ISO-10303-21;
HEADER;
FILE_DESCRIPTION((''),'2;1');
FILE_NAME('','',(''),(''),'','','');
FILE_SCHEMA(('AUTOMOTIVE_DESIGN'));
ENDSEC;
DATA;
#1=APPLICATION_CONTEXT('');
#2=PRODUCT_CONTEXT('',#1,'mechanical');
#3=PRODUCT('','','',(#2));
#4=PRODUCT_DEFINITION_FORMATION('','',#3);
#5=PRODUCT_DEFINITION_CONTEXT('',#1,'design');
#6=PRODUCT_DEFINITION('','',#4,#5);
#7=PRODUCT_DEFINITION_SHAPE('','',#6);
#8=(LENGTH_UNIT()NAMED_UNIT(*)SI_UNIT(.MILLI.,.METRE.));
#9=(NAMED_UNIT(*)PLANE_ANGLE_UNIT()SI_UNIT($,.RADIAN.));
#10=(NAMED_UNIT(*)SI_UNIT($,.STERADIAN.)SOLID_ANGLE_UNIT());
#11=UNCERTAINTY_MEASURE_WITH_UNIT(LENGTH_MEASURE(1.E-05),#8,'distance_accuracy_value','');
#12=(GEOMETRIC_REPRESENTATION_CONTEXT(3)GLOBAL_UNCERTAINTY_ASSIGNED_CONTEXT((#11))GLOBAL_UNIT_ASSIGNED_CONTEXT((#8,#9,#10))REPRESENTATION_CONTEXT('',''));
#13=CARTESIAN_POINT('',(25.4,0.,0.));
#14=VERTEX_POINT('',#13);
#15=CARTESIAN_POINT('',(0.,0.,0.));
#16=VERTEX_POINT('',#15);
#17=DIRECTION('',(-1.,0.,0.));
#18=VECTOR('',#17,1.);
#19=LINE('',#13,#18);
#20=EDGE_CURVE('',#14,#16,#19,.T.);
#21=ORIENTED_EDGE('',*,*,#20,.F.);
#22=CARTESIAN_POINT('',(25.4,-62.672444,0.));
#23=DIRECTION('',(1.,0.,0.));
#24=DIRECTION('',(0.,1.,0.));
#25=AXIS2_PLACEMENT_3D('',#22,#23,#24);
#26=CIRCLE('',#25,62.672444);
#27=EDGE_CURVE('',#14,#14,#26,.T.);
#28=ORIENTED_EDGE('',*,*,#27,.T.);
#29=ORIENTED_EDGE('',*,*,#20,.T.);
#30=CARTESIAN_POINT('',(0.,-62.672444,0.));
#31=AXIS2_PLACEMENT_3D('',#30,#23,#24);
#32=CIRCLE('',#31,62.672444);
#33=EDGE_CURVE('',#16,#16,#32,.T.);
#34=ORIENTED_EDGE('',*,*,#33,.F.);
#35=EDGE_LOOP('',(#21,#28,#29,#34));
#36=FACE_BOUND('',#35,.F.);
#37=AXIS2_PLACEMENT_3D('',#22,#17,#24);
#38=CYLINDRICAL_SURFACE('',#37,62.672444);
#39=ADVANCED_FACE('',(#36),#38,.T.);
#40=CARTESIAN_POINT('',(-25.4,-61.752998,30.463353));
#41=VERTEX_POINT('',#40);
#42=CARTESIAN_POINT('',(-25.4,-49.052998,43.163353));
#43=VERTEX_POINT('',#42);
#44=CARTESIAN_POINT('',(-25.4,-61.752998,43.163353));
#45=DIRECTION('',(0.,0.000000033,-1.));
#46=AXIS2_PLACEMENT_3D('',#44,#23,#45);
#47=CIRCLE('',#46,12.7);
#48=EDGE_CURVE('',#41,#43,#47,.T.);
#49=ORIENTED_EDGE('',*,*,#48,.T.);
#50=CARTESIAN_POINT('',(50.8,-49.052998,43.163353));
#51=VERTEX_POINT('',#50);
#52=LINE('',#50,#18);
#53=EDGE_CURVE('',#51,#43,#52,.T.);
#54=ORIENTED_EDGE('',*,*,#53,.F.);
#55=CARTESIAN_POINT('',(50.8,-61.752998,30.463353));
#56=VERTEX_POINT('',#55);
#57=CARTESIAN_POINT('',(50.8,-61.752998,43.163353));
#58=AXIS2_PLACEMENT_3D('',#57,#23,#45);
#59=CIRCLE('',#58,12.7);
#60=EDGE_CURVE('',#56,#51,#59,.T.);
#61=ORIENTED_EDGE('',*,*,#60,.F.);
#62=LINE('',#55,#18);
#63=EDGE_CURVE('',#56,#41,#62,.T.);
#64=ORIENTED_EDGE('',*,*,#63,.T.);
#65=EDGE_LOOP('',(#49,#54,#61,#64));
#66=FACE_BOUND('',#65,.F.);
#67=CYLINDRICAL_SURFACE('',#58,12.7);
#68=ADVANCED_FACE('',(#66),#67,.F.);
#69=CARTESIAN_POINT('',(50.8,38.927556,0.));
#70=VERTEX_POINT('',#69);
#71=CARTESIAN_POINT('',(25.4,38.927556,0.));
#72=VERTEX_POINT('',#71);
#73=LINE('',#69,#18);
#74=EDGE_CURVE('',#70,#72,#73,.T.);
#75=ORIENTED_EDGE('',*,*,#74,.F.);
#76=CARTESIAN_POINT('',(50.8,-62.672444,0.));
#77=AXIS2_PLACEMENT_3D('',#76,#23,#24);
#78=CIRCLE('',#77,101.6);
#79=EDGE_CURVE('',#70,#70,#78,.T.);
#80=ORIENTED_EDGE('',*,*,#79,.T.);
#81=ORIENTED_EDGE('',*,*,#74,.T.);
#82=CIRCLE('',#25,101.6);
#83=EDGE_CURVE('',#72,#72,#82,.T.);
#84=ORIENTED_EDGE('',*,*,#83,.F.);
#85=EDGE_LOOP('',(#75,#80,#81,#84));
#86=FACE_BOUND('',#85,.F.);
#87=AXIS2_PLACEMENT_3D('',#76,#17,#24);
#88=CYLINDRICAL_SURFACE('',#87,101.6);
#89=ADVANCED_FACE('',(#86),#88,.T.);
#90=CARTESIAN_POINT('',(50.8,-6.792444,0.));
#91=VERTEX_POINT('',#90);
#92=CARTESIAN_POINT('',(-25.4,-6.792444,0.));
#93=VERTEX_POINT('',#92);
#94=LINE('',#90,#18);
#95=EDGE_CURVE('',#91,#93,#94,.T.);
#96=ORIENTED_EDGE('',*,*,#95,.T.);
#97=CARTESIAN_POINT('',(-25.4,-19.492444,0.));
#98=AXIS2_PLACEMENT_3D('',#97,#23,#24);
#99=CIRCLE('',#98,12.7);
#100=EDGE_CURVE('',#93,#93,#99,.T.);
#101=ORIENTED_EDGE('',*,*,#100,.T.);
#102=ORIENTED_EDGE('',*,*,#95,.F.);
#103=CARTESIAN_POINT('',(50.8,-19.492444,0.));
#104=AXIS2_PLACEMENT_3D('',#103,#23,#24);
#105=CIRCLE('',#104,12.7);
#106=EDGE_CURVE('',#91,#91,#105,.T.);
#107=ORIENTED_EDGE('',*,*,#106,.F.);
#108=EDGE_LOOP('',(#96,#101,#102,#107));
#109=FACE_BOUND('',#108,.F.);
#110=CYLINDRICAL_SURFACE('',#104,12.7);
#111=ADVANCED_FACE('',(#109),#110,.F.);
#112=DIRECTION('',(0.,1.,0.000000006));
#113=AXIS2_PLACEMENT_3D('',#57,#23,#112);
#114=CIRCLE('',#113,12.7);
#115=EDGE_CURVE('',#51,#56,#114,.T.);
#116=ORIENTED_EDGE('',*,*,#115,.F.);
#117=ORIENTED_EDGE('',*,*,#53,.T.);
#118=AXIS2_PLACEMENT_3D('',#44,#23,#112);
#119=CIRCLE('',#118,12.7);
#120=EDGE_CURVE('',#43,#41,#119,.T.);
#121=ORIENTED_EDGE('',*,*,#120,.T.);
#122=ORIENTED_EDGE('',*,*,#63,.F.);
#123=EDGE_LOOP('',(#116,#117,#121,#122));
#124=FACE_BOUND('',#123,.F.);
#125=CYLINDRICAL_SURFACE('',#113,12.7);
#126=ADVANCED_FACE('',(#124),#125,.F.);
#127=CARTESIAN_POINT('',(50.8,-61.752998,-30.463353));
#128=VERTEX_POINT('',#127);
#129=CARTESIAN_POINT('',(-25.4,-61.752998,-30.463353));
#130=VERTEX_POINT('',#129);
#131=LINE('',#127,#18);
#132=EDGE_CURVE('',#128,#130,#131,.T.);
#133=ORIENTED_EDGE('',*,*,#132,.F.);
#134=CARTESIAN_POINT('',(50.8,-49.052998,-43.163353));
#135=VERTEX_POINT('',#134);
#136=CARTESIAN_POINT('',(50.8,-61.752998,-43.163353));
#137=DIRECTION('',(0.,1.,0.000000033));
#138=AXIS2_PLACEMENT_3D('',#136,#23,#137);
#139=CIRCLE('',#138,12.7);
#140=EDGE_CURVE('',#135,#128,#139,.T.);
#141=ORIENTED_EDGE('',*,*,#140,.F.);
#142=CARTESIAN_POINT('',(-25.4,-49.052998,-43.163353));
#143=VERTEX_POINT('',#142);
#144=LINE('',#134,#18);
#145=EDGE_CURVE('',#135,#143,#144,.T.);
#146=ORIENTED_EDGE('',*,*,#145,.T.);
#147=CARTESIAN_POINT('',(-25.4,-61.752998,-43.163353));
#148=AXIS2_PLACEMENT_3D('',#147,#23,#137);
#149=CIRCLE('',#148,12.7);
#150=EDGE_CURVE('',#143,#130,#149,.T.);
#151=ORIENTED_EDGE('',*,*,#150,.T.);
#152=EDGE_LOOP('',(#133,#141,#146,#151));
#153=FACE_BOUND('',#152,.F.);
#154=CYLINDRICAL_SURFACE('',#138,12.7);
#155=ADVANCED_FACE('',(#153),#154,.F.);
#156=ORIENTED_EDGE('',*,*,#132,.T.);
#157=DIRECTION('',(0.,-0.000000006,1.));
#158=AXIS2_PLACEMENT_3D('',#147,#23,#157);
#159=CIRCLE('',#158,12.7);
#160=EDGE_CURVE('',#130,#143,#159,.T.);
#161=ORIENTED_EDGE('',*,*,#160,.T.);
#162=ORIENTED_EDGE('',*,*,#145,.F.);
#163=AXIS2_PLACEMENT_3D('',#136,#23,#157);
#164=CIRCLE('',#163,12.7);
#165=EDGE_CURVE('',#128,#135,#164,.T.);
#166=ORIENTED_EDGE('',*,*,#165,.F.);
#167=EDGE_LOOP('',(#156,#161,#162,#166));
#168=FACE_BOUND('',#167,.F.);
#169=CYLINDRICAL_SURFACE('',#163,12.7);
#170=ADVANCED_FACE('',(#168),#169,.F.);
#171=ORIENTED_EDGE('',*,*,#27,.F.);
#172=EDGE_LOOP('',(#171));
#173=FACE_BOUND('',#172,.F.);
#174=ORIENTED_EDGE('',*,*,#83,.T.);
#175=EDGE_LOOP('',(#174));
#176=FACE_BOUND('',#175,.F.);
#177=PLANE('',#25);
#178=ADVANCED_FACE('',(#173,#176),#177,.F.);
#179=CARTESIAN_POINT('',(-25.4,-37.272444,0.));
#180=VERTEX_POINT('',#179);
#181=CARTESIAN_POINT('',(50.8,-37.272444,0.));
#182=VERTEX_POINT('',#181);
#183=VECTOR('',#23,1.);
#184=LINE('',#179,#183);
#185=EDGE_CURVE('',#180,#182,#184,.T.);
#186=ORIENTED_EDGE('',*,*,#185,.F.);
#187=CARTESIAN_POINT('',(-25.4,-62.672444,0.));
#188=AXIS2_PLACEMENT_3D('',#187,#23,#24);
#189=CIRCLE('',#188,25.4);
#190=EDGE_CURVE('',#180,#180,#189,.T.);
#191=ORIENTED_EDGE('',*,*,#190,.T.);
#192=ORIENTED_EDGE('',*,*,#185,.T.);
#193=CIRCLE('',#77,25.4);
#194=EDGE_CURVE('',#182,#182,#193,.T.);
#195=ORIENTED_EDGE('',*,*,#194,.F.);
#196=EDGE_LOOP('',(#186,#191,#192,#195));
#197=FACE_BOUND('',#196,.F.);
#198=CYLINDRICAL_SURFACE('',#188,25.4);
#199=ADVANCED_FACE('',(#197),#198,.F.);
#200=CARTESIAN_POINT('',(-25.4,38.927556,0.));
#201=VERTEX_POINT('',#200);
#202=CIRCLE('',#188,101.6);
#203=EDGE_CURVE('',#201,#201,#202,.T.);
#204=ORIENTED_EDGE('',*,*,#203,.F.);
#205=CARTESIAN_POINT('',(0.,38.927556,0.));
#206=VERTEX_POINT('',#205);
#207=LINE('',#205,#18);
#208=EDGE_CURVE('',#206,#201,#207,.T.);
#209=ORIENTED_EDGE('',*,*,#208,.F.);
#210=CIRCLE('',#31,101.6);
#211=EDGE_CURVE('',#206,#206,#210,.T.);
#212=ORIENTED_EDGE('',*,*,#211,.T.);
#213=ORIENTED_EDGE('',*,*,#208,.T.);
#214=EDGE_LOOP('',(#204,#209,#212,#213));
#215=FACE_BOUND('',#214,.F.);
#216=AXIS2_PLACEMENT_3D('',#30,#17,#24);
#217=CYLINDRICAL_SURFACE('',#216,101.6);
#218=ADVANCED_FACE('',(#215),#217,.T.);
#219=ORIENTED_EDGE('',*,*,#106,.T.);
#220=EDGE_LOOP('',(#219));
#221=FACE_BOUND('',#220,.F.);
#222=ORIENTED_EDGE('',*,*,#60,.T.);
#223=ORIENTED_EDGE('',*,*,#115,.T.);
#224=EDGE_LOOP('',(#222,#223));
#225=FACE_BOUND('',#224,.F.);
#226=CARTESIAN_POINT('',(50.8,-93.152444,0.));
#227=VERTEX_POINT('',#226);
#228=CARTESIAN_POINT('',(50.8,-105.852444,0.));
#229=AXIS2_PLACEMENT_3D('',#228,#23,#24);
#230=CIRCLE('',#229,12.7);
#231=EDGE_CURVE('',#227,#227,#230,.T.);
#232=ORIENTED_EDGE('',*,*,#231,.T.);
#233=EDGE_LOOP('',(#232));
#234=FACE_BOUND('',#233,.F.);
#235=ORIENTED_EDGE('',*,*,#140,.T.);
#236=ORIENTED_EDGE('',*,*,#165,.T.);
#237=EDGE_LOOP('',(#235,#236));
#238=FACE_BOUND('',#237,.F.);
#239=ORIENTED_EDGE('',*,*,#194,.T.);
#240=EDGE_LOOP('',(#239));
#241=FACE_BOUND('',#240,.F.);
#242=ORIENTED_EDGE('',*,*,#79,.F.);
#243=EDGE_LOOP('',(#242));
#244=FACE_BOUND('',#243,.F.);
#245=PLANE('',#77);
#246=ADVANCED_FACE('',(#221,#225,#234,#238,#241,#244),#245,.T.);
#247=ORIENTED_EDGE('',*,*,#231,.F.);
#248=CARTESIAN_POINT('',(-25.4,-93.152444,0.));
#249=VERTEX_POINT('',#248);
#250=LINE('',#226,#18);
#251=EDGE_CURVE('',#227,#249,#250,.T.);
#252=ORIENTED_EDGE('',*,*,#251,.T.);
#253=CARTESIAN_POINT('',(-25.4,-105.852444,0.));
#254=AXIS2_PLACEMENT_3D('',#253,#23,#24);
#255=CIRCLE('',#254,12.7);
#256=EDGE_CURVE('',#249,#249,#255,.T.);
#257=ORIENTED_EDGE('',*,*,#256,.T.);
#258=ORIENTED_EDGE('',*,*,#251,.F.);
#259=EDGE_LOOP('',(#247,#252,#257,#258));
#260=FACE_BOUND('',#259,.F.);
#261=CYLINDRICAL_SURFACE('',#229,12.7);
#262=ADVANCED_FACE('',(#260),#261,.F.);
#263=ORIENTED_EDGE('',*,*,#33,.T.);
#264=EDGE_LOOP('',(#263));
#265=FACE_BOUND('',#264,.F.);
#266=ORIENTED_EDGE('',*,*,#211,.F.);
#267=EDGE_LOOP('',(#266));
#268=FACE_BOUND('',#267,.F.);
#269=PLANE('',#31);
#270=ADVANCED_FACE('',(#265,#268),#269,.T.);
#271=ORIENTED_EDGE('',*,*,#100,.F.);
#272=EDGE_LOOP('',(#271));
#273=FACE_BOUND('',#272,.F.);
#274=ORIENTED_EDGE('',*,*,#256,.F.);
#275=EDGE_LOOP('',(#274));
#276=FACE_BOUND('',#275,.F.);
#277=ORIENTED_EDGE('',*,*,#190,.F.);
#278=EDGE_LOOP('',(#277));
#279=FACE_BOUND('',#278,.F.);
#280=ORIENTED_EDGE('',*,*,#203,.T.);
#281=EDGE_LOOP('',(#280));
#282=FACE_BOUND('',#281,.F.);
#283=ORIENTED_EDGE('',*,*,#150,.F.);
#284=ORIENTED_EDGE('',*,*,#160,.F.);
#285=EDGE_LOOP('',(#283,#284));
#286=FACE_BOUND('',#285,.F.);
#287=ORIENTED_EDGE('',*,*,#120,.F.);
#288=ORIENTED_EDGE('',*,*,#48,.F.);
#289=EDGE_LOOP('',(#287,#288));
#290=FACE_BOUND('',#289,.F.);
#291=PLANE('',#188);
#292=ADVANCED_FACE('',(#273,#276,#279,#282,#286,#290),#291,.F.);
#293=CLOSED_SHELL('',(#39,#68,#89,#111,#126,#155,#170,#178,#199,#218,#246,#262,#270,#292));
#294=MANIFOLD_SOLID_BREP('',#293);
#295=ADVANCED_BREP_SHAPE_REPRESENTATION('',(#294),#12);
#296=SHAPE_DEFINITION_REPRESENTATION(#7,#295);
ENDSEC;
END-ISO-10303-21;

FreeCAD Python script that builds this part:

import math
import FreeCAD as App
import Part
import Sketcher
Q = App.Units.Quantity

doc = App.newDocument("Part")
body = doc.addObject("PartDesign::Body", "Body")

# Sketch on XY plane
sketch1 = doc.addObject("Sketcher::SketchObject", "Sketch")
body.addObject(sketch1)
sketch1.AttachmentSupport = (doc.XY_Plane, [""])
sketch1.MapMode = "FlatFace"
sketch1.addGeometry([
    Part.LineSegment(App.Vector(0, 39, 0), App.Vector(-25, 39, 0)),  # 0
    Part.LineSegment(App.Vector(-25, 39, 0), App.Vector(-25, -37, 0)),  # 1
    Part.LineSegment(App.Vector(-25, -37, 0), App.Vector(51, -37, 0)),  # 2
    Part.LineSegment(App.Vector(51, -37, 0), App.Vector(51, 39, 0)),  # 3
    Part.LineSegment(App.Vector(51, 39, 0), App.Vector(25, 39, 0)),  # 4
    Part.LineSegment(App.Vector(25, 39, 0), App.Vector(25, 0, 0)),  # 5
    Part.LineSegment(App.Vector(25, 0, 0), App.Vector(0, 0, 0)),  # 6
    Part.LineSegment(App.Vector(0, 0, 0), App.Vector(0, 39, 0)),  # 7
], False)
sketch1.addGeometry(Part.LineSegment(App.Vector(-25, -63, 0), App.Vector(51, -63, 0)), True)  # axis
sketch1.addConstraint([
    Sketcher.Constraint("Coincident", 0, 2, 1, 1),
    Sketcher.Constraint("Coincident", 1, 2, 2, 1),
    Sketcher.Constraint("Coincident", 2, 2, 3, 1),
    Sketcher.Constraint("Coincident", 3, 2, 4, 1),
    Sketcher.Constraint("Coincident", 4, 2, 5, 1),
    Sketcher.Constraint("Coincident", 5, 2, 6, 1),
    Sketcher.Constraint("Coincident", 6, 2, 7, 1),
    Sketcher.Constraint("Coincident", 7, 2, 0, 1),
    Sketcher.Constraint("Horizontal", 0),
    Sketcher.Constraint("Vertical", 1),
    Sketcher.Constraint("Horizontal", 2),
    Sketcher.Constraint("Vertical", 3),
    Sketcher.Constraint("Horizontal", 4),
    Sketcher.Constraint("Vertical", 5),
    Sketcher.Constraint("Horizontal", 6),
    Sketcher.Constraint("Vertical", 7),
    Sketcher.Constraint("Horizontal", 8),
    Sketcher.Constraint("Coincident", 6, 2, -1, 1),
    Sketcher.Constraint("Symmetric", 0, 2, 4, 2, -2),
    Sketcher.Constraint("Vertical", 1, 2, 8, 1),
    Sketcher.Constraint("Vertical", 3, 2, 8, 2),
    Sketcher.Constraint("Equal", 0, 4),
    Sketcher.Constraint("Equal", 8, 1),
    Sketcher.Constraint("DistanceX", 0, 2, 0, 1, Q("1 in")),
    Sketcher.Constraint("DistanceY", 8, 1, 1, 2, Q("1 in")),
    Sketcher.Constraint("DistanceY", 5, 2, 5, 1, 38.927556),
])
revolution = doc.addObject("PartDesign::Revolution", "Revolution")
body.addObject(revolution)
revolution.Profile = sketch1
revolution.ReferenceAxis = (sketch1, ["Axis0"])
revolution.Angle = 360

# Sketch on YZ plane
sketch2 = doc.addObject("Sketcher::SketchObject", "Sketch001")
body.addObject(sketch2)
sketch2.AttachmentSupport = (doc.YZ_Plane, [""])
sketch2.MapMode = "FlatFace"
sketch2.AttachmentOffset = App.Placement(App.Vector(0, 0, 2 * 25.4), App.Rotation())
sketch2.addGeometry([
    Part.Circle(App.Vector(-19, 0, 0), App.Vector(0, 0, 1), 13),  # 0
    Part.ArcOfCircle(Part.Circle(App.Vector(-62, -43, 0), App.Vector(0, 0, 1), 13), math.radians(90), math.radians(360)),  # 1
    Part.ArcOfCircle(Part.Circle(App.Vector(-62, -43, 0), App.Vector(0, 0, 1), 13), math.radians(0), math.radians(90)),  # 2
    Part.Circle(App.Vector(-106, 0, 0), App.Vector(0, 0, 1), 13),  # 3
    Part.ArcOfCircle(Part.Circle(App.Vector(-62, 43, 0), App.Vector(0, 0, 1), 13), math.radians(-90), math.radians(0)),  # 4
    Part.ArcOfCircle(Part.Circle(App.Vector(-62, 43, 0), App.Vector(0, 0, 1), 13), math.radians(0), math.radians(270)),  # 5
], False)
sketch2.addConstraint([
    Sketcher.Constraint("Tangent", 1, 1, 2, 2),
    Sketcher.Constraint("Coincident", 2, 1, 1, 2),
    Sketcher.Constraint("Tangent", 4, 1, 5, 2),
    Sketcher.Constraint("Coincident", 5, 1, 4, 2),
    Sketcher.Constraint("Equal", 0, 1),
    Sketcher.Constraint("Equal", 2, 3),
    Sketcher.Constraint("Equal", 3, 4),
    Sketcher.Constraint("Symmetric", 1, 3, 4, 3, -1),
    Sketcher.Constraint("PointOnObject", 0, 3, -1),
    Sketcher.Constraint("PointOnObject", 3, 3, -1),
    Sketcher.Constraint("Horizontal", 1, 3, 2, 1),
    Sketcher.Constraint("Horizontal", 4, 3, 5, 1),
    Sketcher.Constraint("Vertical", 5, 3, 1, 1),
    Sketcher.Constraint("Vertical", 1, 1, 4, 1),
    Sketcher.Constraint("Diameter", 0, Q("1 in")),
    Sketcher.Constraint("DistanceX", 3, 3, 0, 3, Q("3.4 in")),
    Sketcher.Constraint("DistanceX", 2, 3, -1, 1, 61.752998),
    Sketcher.Constraint("DistanceX", 0, 3, -1, 1, 19.492444),
    Sketcher.Constraint("DistanceY", 1, 3, -1, 1, 43.163353),
])
pocket1 = doc.addObject("PartDesign::Pocket", "Pocket")
body.addObject(pocket1)
pocket1.Profile = sketch2
pocket1.Type = "ThroughAll"

doc.recompute()
